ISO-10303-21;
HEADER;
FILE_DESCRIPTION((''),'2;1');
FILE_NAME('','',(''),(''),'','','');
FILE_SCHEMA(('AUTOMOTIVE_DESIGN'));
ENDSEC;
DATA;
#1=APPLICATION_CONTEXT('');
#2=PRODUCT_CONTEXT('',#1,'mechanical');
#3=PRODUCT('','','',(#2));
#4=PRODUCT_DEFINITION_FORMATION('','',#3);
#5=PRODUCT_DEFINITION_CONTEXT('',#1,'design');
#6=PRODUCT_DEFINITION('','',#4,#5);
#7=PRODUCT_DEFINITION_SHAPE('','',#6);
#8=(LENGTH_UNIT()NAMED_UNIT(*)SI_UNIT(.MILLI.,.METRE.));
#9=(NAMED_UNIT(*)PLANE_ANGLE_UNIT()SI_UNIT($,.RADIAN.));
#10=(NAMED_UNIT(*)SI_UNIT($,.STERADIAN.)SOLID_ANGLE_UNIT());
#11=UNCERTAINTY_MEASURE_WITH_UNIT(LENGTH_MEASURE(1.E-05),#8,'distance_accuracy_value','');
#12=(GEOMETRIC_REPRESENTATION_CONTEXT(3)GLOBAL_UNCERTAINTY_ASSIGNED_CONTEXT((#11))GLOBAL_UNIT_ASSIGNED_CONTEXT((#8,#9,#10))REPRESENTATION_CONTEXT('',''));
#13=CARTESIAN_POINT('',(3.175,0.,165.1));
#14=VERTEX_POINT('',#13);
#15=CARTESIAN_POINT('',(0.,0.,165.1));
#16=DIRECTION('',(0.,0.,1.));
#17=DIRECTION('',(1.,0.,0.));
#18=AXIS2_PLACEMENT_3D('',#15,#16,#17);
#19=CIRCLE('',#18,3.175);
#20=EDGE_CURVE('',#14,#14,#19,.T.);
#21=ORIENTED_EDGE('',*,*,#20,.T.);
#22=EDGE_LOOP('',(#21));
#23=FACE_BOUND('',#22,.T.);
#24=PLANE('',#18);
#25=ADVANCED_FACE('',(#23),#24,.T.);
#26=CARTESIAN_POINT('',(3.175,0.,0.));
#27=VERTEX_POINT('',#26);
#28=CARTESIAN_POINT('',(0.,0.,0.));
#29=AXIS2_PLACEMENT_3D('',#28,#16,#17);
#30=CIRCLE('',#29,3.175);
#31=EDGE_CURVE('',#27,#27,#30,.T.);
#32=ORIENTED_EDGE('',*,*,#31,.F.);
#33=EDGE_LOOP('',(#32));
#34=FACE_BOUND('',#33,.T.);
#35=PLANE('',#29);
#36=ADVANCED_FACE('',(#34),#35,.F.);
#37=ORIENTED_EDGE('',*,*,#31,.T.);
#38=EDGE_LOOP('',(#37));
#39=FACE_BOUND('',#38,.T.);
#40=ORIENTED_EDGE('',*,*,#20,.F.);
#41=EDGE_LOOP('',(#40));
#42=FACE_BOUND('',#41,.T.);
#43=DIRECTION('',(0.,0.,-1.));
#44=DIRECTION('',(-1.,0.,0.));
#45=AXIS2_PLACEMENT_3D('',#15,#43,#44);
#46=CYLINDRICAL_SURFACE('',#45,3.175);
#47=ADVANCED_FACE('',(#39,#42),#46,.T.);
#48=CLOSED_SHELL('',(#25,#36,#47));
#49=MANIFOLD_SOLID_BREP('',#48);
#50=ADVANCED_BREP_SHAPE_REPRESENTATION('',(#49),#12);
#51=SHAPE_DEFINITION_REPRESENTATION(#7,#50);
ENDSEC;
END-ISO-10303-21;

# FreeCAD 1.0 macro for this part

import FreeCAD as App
import Part
import Sketcher
Q = App.Units.Quantity

doc = App.newDocument("Part")
params = doc.addObject("Spreadsheet::Sheet", "Params")
for row, (alias, value) in enumerate([
    ("sketch1_diameter", "0.25 in"),
    ("pad1_length", "6.5 in"),
], start=1):
    params.set(f"A{row}", alias)
    params.set(f"B{row}", "=" + value)
    params.setAlias(f"B{row}", alias)

body = doc.addObject("PartDesign::Body", "Body")

# Sketch on XY plane
sketch1 = body.newObject("Sketcher::SketchObject", "Sketch")
sketch1.AttachmentSupport = (doc.getObject("XY_Plane"), [""])
sketch1.MapMode = "FlatFace"
sketch1.addGeometry(Part.Circle(App.Vector(0, 0, 0), App.Vector(0, 0, 1), 3.2), False)
sketch1.addConstraint([
    Sketcher.Constraint("Coincident", 0, 3, -1, 1),
    Sketcher.Constraint("Diameter", 0, Q("0.25 in")),
])
sketch1.setExpression("Constraints[1]", "Params.sketch1_diameter")
pad1 = body.newObject("PartDesign::Pad", "Pad")
pad1.Profile = sketch1
pad1.setExpression("Length", "Params.pad1_length")

doc.recompute()
